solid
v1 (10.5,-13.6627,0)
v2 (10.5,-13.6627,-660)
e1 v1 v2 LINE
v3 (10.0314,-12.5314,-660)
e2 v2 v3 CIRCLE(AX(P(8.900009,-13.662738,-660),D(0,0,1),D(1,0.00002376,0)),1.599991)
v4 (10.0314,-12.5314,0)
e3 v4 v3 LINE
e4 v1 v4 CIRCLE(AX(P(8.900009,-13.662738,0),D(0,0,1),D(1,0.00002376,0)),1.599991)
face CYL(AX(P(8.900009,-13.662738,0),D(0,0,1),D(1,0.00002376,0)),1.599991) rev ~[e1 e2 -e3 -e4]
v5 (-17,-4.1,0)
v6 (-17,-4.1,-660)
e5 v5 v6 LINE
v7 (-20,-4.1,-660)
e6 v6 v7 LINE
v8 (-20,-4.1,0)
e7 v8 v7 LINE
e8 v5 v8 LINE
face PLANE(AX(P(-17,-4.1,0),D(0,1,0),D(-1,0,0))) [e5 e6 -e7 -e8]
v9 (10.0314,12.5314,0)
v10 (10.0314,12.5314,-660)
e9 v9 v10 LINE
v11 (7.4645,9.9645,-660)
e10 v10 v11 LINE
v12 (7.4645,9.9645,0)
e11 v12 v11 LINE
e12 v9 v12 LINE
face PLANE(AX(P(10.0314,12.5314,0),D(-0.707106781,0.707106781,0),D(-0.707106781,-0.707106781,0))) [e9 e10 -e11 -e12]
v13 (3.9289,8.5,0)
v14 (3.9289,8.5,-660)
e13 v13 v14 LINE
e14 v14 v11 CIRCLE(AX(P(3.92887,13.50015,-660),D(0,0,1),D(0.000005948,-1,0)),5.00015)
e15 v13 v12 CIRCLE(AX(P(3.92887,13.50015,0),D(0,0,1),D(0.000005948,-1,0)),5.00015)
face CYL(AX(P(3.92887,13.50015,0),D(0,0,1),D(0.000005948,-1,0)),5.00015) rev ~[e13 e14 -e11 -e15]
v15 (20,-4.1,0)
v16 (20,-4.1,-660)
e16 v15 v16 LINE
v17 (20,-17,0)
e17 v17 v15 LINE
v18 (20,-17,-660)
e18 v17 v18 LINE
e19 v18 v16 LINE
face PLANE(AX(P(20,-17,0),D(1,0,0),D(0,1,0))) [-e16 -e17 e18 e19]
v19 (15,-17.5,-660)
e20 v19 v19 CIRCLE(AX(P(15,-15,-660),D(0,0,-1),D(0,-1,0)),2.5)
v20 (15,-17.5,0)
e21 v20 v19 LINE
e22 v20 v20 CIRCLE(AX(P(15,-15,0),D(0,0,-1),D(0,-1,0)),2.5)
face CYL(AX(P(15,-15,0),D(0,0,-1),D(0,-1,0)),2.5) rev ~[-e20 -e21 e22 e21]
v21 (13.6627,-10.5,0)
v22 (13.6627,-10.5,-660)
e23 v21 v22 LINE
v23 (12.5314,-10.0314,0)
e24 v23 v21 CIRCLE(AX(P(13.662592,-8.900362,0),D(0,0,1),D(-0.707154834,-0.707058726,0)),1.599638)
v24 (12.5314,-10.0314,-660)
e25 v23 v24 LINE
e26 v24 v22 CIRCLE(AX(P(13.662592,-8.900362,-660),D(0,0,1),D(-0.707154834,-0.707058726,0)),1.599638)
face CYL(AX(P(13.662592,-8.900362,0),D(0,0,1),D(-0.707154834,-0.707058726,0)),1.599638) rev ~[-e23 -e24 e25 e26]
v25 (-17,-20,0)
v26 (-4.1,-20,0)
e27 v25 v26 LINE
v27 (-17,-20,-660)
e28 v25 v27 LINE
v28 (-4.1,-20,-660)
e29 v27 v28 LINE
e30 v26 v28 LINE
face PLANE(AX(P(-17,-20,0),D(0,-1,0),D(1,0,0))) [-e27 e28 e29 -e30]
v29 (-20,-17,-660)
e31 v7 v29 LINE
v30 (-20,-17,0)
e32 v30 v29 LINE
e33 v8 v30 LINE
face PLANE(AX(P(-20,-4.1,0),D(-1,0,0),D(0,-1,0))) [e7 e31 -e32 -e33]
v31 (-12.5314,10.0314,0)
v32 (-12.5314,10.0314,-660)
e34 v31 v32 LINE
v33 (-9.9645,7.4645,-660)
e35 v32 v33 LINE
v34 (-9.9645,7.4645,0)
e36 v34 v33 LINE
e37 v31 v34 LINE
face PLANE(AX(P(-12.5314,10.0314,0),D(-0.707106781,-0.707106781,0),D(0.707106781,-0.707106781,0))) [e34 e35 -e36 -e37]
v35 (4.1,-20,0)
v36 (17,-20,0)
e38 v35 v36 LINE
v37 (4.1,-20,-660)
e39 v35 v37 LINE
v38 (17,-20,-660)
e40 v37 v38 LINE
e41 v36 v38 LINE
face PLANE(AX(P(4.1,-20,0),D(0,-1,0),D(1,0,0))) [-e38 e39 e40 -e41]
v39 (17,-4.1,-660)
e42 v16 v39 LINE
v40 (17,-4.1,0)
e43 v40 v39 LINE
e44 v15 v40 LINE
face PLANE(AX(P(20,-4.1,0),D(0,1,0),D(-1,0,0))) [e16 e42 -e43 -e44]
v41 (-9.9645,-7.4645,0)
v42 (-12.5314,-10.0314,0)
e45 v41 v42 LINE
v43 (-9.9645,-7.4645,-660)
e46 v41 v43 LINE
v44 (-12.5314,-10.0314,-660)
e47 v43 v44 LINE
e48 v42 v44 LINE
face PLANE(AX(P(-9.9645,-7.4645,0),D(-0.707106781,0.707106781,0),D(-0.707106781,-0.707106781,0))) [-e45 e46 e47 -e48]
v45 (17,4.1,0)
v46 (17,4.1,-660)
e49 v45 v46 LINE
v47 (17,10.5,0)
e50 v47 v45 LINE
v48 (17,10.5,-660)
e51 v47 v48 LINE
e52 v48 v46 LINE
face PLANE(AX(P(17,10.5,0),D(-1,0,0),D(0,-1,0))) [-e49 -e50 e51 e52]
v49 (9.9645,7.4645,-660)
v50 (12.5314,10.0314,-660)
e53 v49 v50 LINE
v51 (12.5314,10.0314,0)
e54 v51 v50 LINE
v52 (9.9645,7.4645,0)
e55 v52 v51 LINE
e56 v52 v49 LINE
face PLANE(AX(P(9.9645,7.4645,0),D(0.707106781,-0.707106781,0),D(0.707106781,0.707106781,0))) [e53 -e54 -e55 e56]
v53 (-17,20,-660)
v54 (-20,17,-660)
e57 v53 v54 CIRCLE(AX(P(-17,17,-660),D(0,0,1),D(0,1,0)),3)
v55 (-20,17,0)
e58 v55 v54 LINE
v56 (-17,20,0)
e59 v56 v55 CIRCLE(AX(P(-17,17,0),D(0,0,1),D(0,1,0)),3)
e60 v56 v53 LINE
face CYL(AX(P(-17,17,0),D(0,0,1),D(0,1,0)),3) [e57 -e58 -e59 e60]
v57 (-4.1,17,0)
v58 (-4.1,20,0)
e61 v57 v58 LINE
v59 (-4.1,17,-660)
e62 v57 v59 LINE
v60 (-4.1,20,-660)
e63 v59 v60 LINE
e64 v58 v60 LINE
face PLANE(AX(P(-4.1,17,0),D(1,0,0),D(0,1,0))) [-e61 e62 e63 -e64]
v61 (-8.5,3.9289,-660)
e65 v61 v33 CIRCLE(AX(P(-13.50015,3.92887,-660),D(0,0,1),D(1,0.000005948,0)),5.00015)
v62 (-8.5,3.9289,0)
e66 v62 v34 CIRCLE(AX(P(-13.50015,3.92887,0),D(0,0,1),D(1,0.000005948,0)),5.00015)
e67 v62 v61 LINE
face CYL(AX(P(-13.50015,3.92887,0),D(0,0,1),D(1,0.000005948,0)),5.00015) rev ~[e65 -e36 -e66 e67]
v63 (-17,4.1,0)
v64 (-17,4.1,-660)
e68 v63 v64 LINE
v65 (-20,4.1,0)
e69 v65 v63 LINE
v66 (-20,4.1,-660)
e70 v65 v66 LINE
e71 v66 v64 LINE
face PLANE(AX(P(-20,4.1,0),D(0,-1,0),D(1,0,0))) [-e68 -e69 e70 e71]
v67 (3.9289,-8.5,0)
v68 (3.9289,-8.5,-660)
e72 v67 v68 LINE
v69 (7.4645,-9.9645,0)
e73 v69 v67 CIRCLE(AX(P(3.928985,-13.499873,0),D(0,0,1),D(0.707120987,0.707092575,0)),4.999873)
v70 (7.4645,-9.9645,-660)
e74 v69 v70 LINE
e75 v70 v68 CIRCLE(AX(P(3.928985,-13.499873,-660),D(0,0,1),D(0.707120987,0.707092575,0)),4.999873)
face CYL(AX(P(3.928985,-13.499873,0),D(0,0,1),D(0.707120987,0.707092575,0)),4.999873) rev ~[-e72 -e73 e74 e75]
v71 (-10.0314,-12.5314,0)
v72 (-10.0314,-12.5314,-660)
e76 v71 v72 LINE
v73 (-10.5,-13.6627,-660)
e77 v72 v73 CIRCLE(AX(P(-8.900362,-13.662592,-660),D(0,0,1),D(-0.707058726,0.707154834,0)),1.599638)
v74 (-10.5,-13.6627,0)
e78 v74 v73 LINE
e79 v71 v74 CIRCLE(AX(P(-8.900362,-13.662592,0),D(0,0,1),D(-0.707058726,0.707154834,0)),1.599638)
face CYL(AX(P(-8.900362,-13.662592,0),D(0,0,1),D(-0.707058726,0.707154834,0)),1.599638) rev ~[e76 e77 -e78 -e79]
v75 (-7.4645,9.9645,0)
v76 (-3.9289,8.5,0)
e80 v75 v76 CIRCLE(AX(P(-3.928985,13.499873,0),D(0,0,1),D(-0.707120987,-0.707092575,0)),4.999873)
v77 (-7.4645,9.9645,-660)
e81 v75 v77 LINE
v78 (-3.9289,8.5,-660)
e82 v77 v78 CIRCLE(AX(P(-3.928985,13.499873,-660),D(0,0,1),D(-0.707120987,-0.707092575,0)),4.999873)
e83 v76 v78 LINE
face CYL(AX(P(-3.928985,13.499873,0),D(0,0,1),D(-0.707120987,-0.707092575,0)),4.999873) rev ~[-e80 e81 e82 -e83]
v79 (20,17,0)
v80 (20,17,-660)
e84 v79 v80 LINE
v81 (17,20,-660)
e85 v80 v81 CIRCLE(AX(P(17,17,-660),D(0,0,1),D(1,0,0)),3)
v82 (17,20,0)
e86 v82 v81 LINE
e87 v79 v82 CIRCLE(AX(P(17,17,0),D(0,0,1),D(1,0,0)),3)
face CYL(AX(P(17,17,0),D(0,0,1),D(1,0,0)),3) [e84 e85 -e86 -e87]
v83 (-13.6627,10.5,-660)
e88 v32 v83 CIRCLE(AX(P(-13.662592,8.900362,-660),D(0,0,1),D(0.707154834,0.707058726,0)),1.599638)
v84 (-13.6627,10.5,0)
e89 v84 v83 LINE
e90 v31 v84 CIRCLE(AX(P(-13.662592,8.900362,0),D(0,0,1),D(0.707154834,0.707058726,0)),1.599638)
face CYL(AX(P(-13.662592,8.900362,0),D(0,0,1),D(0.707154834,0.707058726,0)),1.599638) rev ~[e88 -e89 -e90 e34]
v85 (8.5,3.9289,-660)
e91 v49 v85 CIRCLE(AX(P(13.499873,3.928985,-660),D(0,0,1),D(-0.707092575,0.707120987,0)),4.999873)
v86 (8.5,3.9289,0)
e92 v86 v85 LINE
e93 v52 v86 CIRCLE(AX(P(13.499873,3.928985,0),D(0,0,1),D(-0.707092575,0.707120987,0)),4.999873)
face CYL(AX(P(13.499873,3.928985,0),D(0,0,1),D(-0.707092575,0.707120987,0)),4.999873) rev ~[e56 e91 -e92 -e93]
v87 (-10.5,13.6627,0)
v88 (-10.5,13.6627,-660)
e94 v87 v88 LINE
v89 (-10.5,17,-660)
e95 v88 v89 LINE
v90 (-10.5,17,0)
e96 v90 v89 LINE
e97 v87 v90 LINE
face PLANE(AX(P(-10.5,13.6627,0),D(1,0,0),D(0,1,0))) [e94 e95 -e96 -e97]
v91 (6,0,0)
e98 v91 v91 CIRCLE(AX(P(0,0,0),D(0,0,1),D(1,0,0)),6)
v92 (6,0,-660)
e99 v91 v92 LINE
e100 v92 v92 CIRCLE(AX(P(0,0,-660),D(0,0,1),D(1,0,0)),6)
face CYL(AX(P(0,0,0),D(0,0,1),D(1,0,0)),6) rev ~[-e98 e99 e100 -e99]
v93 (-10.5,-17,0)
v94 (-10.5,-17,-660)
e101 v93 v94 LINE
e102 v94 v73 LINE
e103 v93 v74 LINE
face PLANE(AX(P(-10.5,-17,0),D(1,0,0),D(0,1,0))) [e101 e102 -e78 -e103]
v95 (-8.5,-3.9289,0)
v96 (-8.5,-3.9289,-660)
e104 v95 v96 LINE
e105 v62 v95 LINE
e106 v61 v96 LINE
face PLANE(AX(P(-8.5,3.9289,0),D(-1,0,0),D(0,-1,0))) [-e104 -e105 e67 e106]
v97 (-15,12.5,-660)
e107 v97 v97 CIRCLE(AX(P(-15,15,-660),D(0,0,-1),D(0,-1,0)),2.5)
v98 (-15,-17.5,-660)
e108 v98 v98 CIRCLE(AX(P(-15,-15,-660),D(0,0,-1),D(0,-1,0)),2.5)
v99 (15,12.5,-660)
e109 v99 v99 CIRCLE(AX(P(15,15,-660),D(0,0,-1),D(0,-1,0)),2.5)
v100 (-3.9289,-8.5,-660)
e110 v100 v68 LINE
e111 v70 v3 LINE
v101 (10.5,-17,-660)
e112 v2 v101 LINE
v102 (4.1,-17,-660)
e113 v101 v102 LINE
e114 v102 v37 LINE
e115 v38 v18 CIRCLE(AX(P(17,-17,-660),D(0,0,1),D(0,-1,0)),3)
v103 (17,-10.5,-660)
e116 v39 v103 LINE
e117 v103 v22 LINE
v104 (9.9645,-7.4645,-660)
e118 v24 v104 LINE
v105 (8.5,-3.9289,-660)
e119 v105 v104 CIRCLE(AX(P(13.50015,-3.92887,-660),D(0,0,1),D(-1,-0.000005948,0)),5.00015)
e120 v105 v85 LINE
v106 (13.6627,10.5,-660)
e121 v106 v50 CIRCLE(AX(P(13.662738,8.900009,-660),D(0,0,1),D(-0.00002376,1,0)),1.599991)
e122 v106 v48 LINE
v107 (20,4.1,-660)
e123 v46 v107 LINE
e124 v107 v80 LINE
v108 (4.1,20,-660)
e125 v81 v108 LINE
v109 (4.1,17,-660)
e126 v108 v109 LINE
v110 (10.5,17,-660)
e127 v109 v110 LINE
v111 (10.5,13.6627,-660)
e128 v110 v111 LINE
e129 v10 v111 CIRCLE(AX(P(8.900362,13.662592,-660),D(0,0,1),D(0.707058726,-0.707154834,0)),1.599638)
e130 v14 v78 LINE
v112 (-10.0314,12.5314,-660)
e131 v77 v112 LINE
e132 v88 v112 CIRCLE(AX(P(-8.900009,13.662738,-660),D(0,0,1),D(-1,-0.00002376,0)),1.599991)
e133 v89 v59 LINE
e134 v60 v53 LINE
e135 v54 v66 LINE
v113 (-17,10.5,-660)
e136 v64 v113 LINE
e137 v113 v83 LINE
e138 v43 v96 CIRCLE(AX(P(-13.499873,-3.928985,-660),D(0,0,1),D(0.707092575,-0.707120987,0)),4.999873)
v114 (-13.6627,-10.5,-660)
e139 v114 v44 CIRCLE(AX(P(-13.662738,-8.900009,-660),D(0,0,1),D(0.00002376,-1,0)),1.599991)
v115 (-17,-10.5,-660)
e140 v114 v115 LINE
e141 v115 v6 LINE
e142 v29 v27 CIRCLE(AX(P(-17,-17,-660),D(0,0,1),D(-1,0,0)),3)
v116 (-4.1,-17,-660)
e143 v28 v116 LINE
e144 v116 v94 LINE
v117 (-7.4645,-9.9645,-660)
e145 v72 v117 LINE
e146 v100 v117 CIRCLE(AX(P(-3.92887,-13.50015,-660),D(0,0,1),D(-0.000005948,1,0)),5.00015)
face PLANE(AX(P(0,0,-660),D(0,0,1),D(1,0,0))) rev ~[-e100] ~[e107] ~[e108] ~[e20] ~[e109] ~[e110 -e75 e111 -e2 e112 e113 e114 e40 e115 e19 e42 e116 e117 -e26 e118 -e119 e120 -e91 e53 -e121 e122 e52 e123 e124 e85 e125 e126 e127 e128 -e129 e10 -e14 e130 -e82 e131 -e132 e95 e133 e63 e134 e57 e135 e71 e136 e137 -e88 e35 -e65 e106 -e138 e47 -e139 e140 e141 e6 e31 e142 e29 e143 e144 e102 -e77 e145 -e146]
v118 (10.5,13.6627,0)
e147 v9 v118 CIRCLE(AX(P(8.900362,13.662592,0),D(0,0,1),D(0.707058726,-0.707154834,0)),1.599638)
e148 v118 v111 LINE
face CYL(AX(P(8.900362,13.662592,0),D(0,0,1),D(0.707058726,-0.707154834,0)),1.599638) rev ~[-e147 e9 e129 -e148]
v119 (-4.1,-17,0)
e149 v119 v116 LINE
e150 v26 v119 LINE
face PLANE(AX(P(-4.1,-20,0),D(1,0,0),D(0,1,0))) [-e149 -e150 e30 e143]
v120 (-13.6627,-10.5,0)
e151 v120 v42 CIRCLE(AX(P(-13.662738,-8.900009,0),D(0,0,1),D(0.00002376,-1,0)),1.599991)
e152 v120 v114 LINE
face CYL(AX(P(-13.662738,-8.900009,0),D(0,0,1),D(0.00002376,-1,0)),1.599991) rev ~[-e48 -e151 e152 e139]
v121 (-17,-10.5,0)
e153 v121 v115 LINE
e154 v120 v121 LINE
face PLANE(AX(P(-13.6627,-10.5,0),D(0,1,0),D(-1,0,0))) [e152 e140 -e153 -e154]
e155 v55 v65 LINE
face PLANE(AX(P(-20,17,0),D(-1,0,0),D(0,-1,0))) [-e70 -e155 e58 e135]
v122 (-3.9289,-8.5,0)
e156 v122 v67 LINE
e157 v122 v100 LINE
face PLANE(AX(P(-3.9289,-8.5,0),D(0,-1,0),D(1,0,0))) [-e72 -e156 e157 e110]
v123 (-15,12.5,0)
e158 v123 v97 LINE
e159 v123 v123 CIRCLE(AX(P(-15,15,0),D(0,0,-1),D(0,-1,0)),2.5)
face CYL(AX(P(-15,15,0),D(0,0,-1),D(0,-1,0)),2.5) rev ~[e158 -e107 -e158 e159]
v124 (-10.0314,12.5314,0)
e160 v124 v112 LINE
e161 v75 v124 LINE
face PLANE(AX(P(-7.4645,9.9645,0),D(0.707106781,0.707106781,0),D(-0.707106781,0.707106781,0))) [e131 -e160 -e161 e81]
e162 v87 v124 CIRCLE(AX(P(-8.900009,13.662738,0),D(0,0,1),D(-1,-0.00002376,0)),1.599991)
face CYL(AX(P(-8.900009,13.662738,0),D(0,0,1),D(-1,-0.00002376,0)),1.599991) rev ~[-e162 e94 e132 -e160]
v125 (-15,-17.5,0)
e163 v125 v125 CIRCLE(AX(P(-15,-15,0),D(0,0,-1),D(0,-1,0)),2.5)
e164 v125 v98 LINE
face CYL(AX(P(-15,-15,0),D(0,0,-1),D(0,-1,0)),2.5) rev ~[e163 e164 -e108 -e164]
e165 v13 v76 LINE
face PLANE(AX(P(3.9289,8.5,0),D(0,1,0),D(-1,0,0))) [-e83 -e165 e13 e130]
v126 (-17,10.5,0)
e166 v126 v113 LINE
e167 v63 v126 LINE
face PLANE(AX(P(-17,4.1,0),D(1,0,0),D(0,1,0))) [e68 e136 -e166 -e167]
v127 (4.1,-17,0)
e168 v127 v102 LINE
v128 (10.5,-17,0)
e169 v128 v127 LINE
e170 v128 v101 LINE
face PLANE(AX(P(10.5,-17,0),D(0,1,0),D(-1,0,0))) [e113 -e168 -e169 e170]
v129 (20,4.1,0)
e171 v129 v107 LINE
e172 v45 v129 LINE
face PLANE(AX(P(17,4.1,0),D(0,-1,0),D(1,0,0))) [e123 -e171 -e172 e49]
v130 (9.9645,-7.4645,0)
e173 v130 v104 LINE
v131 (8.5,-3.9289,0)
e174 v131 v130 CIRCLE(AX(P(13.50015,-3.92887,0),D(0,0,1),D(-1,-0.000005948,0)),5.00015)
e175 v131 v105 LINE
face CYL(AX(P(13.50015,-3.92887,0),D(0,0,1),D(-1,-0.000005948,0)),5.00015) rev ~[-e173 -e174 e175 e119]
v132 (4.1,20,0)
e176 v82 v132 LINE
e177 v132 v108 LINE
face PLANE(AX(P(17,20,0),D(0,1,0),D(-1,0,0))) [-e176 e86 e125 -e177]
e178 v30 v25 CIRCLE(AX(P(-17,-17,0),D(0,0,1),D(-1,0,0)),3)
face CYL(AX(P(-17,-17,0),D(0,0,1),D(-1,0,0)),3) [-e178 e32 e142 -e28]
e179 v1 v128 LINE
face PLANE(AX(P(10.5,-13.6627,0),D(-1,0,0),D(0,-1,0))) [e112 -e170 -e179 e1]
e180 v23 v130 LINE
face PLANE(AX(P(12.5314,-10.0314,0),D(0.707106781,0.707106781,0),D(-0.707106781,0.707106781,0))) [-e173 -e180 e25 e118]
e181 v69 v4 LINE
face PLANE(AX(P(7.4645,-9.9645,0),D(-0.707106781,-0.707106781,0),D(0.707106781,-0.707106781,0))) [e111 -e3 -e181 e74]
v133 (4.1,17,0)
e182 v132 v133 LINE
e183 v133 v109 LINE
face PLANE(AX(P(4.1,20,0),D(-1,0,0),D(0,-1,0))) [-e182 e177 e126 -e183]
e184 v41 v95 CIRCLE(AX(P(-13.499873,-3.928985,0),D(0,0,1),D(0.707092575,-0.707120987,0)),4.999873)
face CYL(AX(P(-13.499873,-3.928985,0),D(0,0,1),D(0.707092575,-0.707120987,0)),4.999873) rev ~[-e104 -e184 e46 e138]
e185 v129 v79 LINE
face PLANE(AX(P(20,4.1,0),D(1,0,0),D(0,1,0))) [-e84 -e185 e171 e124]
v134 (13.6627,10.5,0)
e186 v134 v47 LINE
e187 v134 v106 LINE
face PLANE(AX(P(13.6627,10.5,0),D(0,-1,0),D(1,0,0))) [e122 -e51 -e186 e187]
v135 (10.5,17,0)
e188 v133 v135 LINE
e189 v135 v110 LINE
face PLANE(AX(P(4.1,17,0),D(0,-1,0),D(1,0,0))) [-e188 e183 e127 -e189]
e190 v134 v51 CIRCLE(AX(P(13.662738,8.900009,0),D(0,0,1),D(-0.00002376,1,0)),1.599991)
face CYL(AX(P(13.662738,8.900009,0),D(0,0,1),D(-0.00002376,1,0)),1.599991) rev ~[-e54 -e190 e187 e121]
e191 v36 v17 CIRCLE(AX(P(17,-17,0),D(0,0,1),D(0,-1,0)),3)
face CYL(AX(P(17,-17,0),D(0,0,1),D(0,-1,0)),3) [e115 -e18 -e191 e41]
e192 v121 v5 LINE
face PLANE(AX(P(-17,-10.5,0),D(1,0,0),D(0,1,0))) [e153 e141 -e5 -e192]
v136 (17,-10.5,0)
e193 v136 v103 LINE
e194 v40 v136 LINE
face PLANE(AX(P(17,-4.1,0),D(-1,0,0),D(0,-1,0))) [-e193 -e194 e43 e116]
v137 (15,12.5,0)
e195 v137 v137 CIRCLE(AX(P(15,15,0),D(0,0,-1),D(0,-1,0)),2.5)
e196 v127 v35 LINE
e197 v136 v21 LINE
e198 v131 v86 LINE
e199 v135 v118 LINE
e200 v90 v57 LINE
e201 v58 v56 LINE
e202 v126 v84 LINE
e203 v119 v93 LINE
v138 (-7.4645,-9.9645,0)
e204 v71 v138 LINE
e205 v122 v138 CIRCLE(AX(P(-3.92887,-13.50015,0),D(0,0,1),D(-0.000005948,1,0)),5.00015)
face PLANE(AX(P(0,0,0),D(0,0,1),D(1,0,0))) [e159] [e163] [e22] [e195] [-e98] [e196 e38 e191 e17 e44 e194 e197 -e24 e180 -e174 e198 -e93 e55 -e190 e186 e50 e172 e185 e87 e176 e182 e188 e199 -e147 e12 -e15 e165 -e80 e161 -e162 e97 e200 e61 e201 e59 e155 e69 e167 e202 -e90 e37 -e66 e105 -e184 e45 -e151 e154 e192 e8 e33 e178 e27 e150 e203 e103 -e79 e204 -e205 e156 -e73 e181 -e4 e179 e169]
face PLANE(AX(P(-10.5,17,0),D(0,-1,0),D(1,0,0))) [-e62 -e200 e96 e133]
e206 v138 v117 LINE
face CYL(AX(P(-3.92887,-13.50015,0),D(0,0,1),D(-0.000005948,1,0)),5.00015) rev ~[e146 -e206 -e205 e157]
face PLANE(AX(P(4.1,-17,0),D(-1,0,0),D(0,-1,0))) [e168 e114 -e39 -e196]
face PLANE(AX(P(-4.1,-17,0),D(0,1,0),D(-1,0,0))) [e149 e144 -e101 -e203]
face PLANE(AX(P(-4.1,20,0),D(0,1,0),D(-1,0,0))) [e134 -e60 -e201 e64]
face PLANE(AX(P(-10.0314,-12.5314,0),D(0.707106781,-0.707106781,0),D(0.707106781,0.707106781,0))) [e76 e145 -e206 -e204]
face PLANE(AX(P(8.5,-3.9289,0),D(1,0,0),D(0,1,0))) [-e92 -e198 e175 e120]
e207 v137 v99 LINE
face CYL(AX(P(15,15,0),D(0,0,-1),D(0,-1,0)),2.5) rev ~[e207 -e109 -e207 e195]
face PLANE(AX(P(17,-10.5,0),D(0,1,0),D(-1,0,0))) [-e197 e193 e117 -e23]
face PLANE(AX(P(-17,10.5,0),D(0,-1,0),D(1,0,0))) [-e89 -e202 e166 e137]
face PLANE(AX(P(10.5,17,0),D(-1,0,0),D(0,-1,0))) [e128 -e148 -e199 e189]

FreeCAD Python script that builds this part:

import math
import FreeCAD as App
import Part
import Sketcher

doc = App.newDocument("Part")
body = doc.addObject("PartDesign::Body", "Body")

sketch1 = body.newObject("Sketcher::SketchObject", "Sketch")
sketch1.AttachmentSupport = (doc.getObject("XY_Plane"), [""])
sketch1.MapMode = "FlatFace"
sketch1.addGeometry(Part.LineSegment(App.Vector(-20, -4.1, 0), App.Vector(-20, -17, 0)), False)
sketch1.addGeometry(Part.ArcOfCircle(Part.Circle(App.Vector(-17, -17, 0), App.Vector(0, 0, 1), 3), math.radians(180), math.radians(270)), False)
sketch1.addGeometry(Part.LineSegment(App.Vector(-17, -20, 0), App.Vector(-4.1, -20, 0)), False)
sketch1.addGeometry(Part.LineSegment(App.Vector(-4.1, -20, 0), App.Vector(-4.1, -17, 0)), False)
sketch1.addGeometry(Part.LineSegment(App.Vector(-4.1, -17, 0), App.Vector(-10.5, -17, 0)), False)
sketch1.addGeometry(Part.LineSegment(App.Vector(-10.5, -17, 0), App.Vector(-10.5, -13.7, 0)), False)
sketch1.addGeometry(Part.ArcOfCircle(Part.Circle(App.Vector(-8.9, -13.7, 0), App.Vector(0, 0, 1), 1.6), math.radians(135), math.radians(180)), False)
sketch1.addGeometry(Part.LineSegment(App.Vector(-10, -12.5, 0), App.Vector(-7.5, -10, 0)), False)
sketch1.addGeometry(Part.ArcOfCircle(Part.Circle(App.Vector(-3.9, -13.5, 0), App.Vector(0, 0, 1), 5), math.radians(90), math.radians(135)), False)
sketch1.addGeometry(Part.LineSegment(App.Vector(-3.9, -8.5, 0), App.Vector(3.9, -8.5, 0)), False)
sketch1.addGeometry(Part.ArcOfCircle(Part.Circle(App.Vector(3.9, -13.5, 0), App.Vector(0, 0, 1), 5), math.radians(45), math.radians(90)), False)
sketch1.addGeometry(Part.LineSegment(App.Vector(7.5, -10, 0), App.Vector(10, -12.5, 0)), False)
sketch1.addGeometry(Part.ArcOfCircle(Part.Circle(App.Vector(8.9, -13.7, 0), App.Vector(0, 0, 1), 1.6), math.radians(0), math.radians(45)), False)
sketch1.addGeometry(Part.LineSegment(App.Vector(10.5, -13.7, 0), App.Vector(10.5, -17, 0)), False)
sketch1.addGeometry(Part.LineSegment(App.Vector(10.5, -17, 0), App.Vector(4.1, -17, 0)), False)
sketch1.addGeometry(Part.LineSegment(App.Vector(4.1, -17, 0), App.Vector(4.1, -20, 0)), False)
sketch1.addGeometry(Part.LineSegment(App.Vector(4.1, -20, 0), App.Vector(17, -20, 0)), False)
sketch1.addGeometry(Part.ArcOfCircle(Part.Circle(App.Vector(17, -17, 0), App.Vector(0, 0, 1), 3), math.radians(-90), math.radians(0)), False)
sketch1.addGeometry(Part.LineSegment(App.Vector(20, -17, 0), App.Vector(20, -4.1, 0)), False)
sketch1.addGeometry(Part.LineSegment(App.Vector(20, -4.1, 0), App.Vector(17, -4.1, 0)), False)
sketch1.addGeometry(Part.LineSegment(App.Vector(17, -4.1, 0), App.Vector(17, -10.5, 0)), False)
sketch1.addGeometry(Part.LineSegment(App.Vector(17, -10.5, 0), App.Vector(13.7, -10.5, 0)), False)
sketch1.addGeometry(Part.ArcOfCircle(Part.Circle(App.Vector(13.7, -8.9, 0), App.Vector(0, 0, 1), 1.6), math.radians(-135), math.radians(-90)), False)
sketch1.addGeometry(Part.LineSegment(App.Vector(12.5, -10, 0), App.Vector(10, -7.5, 0)), False)
sketch1.addGeometry(Part.ArcOfCircle(Part.Circle(App.Vector(13.5, -3.9, 0), App.Vector(0, 0, 1), 5), math.radians(180), math.radians(225)), False)
sketch1.addGeometry(Part.LineSegment(App.Vector(8.5, -3.9, 0), App.Vector(8.5, 3.9, 0)), False)
sketch1.addGeometry(Part.ArcOfCircle(Part.Circle(App.Vector(13.5, 3.9, 0), App.Vector(0, 0, 1), 5), math.radians(135), math.radians(180)), False)
sketch1.addGeometry(Part.LineSegment(App.Vector(10, 7.5, 0), App.Vector(12.5, 10, 0)), False)
sketch1.addGeometry(Part.ArcOfCircle(Part.Circle(App.Vector(13.7, 8.9, 0), App.Vector(0, 0, 1), 1.6), math.radians(90), math.radians(135)), False)
sketch1.addGeometry(Part.LineSegment(App.Vector(13.7, 10.5, 0), App.Vector(17, 10.5, 0)), False)
sketch1.addGeometry(Part.LineSegment(App.Vector(17, 10.5, 0), App.Vector(17, 4.1, 0)), False)
sketch1.addGeometry(Part.LineSegment(App.Vector(17, 4.1, 0), App.Vector(20, 4.1, 0)), False)
sketch1.addGeometry(Part.LineSegment(App.Vector(20, 4.1, 0), App.Vector(20, 17, 0)), False)
sketch1.addGeometry(Part.ArcOfCircle(Part.Circle(App.Vector(17, 17, 0), App.Vector(0, 0, 1), 3), math.radians(0), math.radians(90)), False)
sketch1.addGeometry(Part.LineSegment(App.Vector(17, 20, 0), App.Vector(4.1, 20, 0)), False)
sketch1.addGeometry(Part.LineSegment(App.Vector(4.1, 20, 0), App.Vector(4.1, 17, 0)), False)
sketch1.addGeometry(Part.LineSegment(App.Vector(4.1, 17, 0), App.Vector(10.5, 17, 0)), False)
sketch1.addGeometry(Part.LineSegment(App.Vector(10.5, 17, 0), App.Vector(10.5, 13.7, 0)), False)
sketch1.addGeometry(Part.ArcOfCircle(Part.Circle(App.Vector(8.9, 13.7, 0), App.Vector(0, 0, 1), 1.6), math.radians(-45), math.radians(0)), False)
sketch1.addGeometry(Part.LineSegment(App.Vector(10, 12.5, 0), App.Vector(7.5, 10, 0)), False)
sketch1.addGeometry(Part.ArcOfCircle(Part.Circle(App.Vector(3.9, 13.5, 0), App.Vector(0, 0, 1), 5), math.radians(-90), math.radians(-45)), False)
sketch1.addGeometry(Part.LineSegment(App.Vector(3.9, 8.5, 0), App.Vector(-3.9, 8.5, 0)), False)
sketch1.addGeometry(Part.ArcOfCircle(Part.Circle(App.Vector(-3.9, 13.5, 0), App.Vector(0, 0, 1), 5), math.radians(-135), math.radians(-90)), False)
sketch1.addGeometry(Part.LineSegment(App.Vector(-7.5, 10, 0), App.Vector(-10, 12.5, 0)), False)
sketch1.addGeometry(Part.ArcOfCircle(Part.Circle(App.Vector(-8.9, 13.7, 0), App.Vector(0, 0, 1), 1.6), math.radians(180), math.radians(225)), False)
sketch1.addGeometry(Part.LineSegment(App.Vector(-10.5, 13.7, 0), App.Vector(-10.5, 17, 0)), False)
sketch1.addGeometry(Part.LineSegment(App.Vector(-10.5, 17, 0), App.Vector(-4.1, 17, 0)), False)
sketch1.addGeometry(Part.LineSegment(App.Vector(-4.1, 17, 0), App.Vector(-4.1, 20, 0)), False)
sketch1.addGeometry(Part.LineSegment(App.Vector(-4.1, 20, 0), App.Vector(-17, 20, 0)), False)
sketch1.addGeometry(Part.ArcOfCircle(Part.Circle(App.Vector(-17, 17, 0), App.Vector(0, 0, 1), 3), math.radians(90), math.radians(180)), False)
sketch1.addGeometry(Part.LineSegment(App.Vector(-20, 17, 0), App.Vector(-20, 4.1, 0)), False)
sketch1.addGeometry(Part.LineSegment(App.Vector(-20, 4.1, 0), App.Vector(-17, 4.1, 0)), False)
sketch1.addGeometry(Part.LineSegment(App.Vector(-17, 4.1, 0), App.Vector(-17, 10.5, 0)), False)
sketch1.addGeometry(Part.LineSegment(App.Vector(-17, 10.5, 0), App.Vector(-13.7, 10.5, 0)), False)
sketch1.addGeometry(Part.ArcOfCircle(Part.Circle(App.Vector(-13.7, 8.9, 0), App.Vector(0, 0, 1), 1.6), math.radians(45), math.radians(90)), False)
sketch1.addGeometry(Part.LineSegment(App.Vector(-12.5, 10, 0), App.Vector(-10, 7.5, 0)), False)
sketch1.addGeometry(Part.ArcOfCircle(Part.Circle(App.Vector(-13.5, 3.9, 0), App.Vector(0, 0, 1), 5), math.radians(0), math.radians(45)), False)
sketch1.addGeometry(Part.LineSegment(App.Vector(-8.5, 3.9, 0), App.Vector(-8.5, -3.9, 0)), False)
sketch1.addGeometry(Part.ArcOfCircle(Part.Circle(App.Vector(-13.5, -3.9, 0), App.Vector(0, 0, 1), 5), math.radians(-45), math.radians(0)), False)
sketch1.addGeometry(Part.LineSegment(App.Vector(-10, -7.5, 0), App.Vector(-12.5, -10, 0)), False)
sketch1.addGeometry(Part.ArcOfCircle(Part.Circle(App.Vector(-13.7, -8.9, 0), App.Vector(0, 0, 1), 1.6), math.radians(-90), math.radians(-45)), False)
sketch1.addGeometry(Part.LineSegment(App.Vector(-13.7, -10.5, 0), App.Vector(-17, -10.5, 0)), False)
sketch1.addGeometry(Part.LineSegment(App.Vector(-17, -10.5, 0), App.Vector(-17, -4.1, 0)), False)
sketch1.addGeometry(Part.LineSegment(App.Vector(-17, -4.1, 0), App.Vector(-20, -4.1, 0)), False)
sketch1.addGeometry(Part.Circle(App.Vector(0, 0, 0), App.Vector(0, 0, 1), 6), False)
sketch1.addConstraint(Sketcher.Constraint("Tangent", 0, 2, 1, 1))
sketch1.addConstraint(Sketcher.Constraint("Tangent", 1, 2, 2, 1))
sketch1.addConstraint(Sketcher.Constraint("Coincident", 2, 2, 3, 1))
sketch1.addConstraint(Sketcher.Constraint("Coincident", 3, 2, 4, 1))
sketch1.addConstraint(Sketcher.Constraint("Coincident", 4, 2, 5, 1))
sketch1.addConstraint(Sketcher.Constraint("Tangent", 5, 2, 6, 2))
sketch1.addConstraint(Sketcher.Constraint("Tangent", 6, 1, 7, 1))
sketch1.addConstraint(Sketcher.Constraint("Tangent", 7, 2, 8, 2))
sketch1.addConstraint(Sketcher.Constraint("Tangent", 8, 1, 9, 1))
sketch1.addConstraint(Sketcher.Constraint("Tangent", 9, 2, 10, 2))
sketch1.addConstraint(Sketcher.Constraint("Tangent", 10, 1, 11, 1))
sketch1.addConstraint(Sketcher.Constraint("Tangent", 11, 2, 12, 2))
sketch1.addConstraint(Sketcher.Constraint("Tangent", 12, 1, 13, 1))
sketch1.addConstraint(Sketcher.Constraint("Coincident", 13, 2, 14, 1))
sketch1.addConstraint(Sketcher.Constraint("Coincident", 14, 2, 15, 1))
sketch1.addConstraint(Sketcher.Constraint("Coincident", 15, 2, 16, 1))
sketch1.addConstraint(Sketcher.Constraint("Tangent", 16, 2, 17, 1))
sketch1.addConstraint(Sketcher.Constraint("Tangent", 17, 2, 18, 1))
sketch1.addConstraint(Sketcher.Constraint("Coincident", 18, 2, 19, 1))
sketch1.addConstraint(Sketcher.Constraint("Coincident", 19, 2, 20, 1))
sketch1.addConstraint(Sketcher.Constraint("Coincident", 20, 2, 21, 1))
sketch1.addConstraint(Sketcher.Constraint("Tangent", 21, 2, 22, 2))
sketch1.addConstraint(Sketcher.Constraint("Tangent", 22, 1, 23, 1))
sketch1.addConstraint(Sketcher.Constraint("Tangent", 23, 2, 24, 2))
sketch1.addConstraint(Sketcher.Constraint("Tangent", 24, 1, 25, 1))
sketch1.addConstraint(Sketcher.Constraint("Tangent", 25, 2, 26, 2))
sketch1.addConstraint(Sketcher.Constraint("Tangent", 26, 1, 27, 1))
sketch1.addConstraint(Sketcher.Constraint("Tangent", 27, 2, 28, 2))
sketch1.addConstraint(Sketcher.Constraint("Tangent", 28, 1, 29, 1))
sketch1.addConstraint(Sketcher.Constraint("Coincident", 29, 2, 30, 1))
sketch1.addConstraint(Sketcher.Constraint("Coincident", 30, 2, 31, 1))
sketch1.addConstraint(Sketcher.Constraint("Coincident", 31, 2, 32, 1))
sketch1.addConstraint(Sketcher.Constraint("Tangent", 32, 2, 33, 1))
sketch1.addConstraint(Sketcher.Constraint("Tangent", 33, 2, 34, 1))
sketch1.addConstraint(Sketcher.Constraint("Coincident", 34, 2, 35, 1))
sketch1.addConstraint(Sketcher.Constraint("Coincident", 35, 2, 36, 1))
sketch1.addConstraint(Sketcher.Constraint("Coincident", 36, 2, 37, 1))
sketch1.addConstraint(Sketcher.Constraint("Tangent", 37, 2, 38, 2))
sketch1.addConstraint(Sketcher.Constraint("Tangent", 38, 1, 39, 1))
sketch1.addConstraint(Sketcher.Constraint("Tangent", 39, 2, 40, 2))
sketch1.addConstraint(Sketcher.Constraint("Tangent", 40, 1, 41, 1))
sketch1.addConstraint(Sketcher.Constraint("Tangent", 41, 2, 42, 2))
sketch1.addConstraint(Sketcher.Constraint("Tangent", 42, 1, 43, 1))
sketch1.addConstraint(Sketcher.Constraint("Tangent", 43, 2, 44, 2))
sketch1.addConstraint(Sketcher.Constraint("Tangent", 44, 1, 45, 1))
sketch1.addConstraint(Sketcher.Constraint("Coincident", 45, 2, 46, 1))
sketch1.addConstraint(Sketcher.Constraint("Coincident", 46, 2, 47, 1))
sketch1.addConstraint(Sketcher.Constraint("Coincident", 47, 2, 48, 1))
sketch1.addConstraint(Sketcher.Constraint("Tangent", 48, 2, 49, 1))
sketch1.addConstraint(Sketcher.Constraint("Tangent", 49, 2, 50, 1))
sketch1.addConstraint(Sketcher.Constraint("Coincident", 50, 2, 51, 1))
sketch1.addConstraint(Sketcher.Constraint("Coincident", 51, 2, 52, 1))
sketch1.addConstraint(Sketcher.Constraint("Coincident", 52, 2, 53, 1))
sketch1.addConstraint(Sketcher.Constraint("Tangent", 53, 2, 54, 2))
sketch1.addConstraint(Sketcher.Constraint("Tangent", 54, 1, 55, 1))
sketch1.addConstraint(Sketcher.Constraint("Tangent", 55, 2, 56, 2))
sketch1.addConstraint(Sketcher.Constraint("Tangent", 56, 1, 57, 1))
sketch1.addConstraint(Sketcher.Constraint("Tangent", 57, 2, 58, 2))
sketch1.addConstraint(Sketcher.Constraint("Tangent", 58, 1, 59, 1))
sketch1.addConstraint(Sketcher.Constraint("Tangent", 59, 2, 60, 2))
sketch1.addConstraint(Sketcher.Constraint("Tangent", 60, 1, 61, 1))
sketch1.addConstraint(Sketcher.Constraint("Coincident", 61, 2, 62, 1))
sketch1.addConstraint(Sketcher.Constraint("Coincident", 62, 2, 63, 1))
sketch1.addConstraint(Sketcher.Constraint("Coincident", 63, 2, 0, 1))
sketch1.addConstraint(Sketcher.Constraint("Vertical", 0))
sketch1.addConstraint(Sketcher.Constraint("Horizontal", 2))
sketch1.addConstraint(Sketcher.Constraint("Vertical", 3))
sketch1.addConstraint(Sketcher.Constraint("Horizontal", 4))
sketch1.addConstraint(Sketcher.Constraint("Vertical", 5))
sketch1.addConstraint(Sketcher.Constraint("Horizontal", 9))
sketch1.addConstraint(Sketcher.Constraint("Vertical", 13))
sketch1.addConstraint(Sketcher.Constraint("Horizontal", 14))
sketch1.addConstraint(Sketcher.Constraint("Vertical", 15))
sketch1.addConstraint(Sketcher.Constraint("Horizontal", 16))
sketch1.addConstraint(Sketcher.Constraint("Vertical", 18))
sketch1.addConstraint(Sketcher.Constraint("Horizontal", 19))
sketch1.addConstraint(Sketcher.Constraint("Vertical", 20))
sketch1.addConstraint(Sketcher.Constraint("Horizontal", 21))
sketch1.addConstraint(Sketcher.Constraint("Vertical", 25))
sketch1.addConstraint(Sketcher.Constraint("Horizontal", 29))
sketch1.addConstraint(Sketcher.Constraint("Vertical", 30))
sketch1.addConstraint(Sketcher.Constraint("Horizontal", 31))
sketch1.addConstraint(Sketcher.Constraint("Vertical", 32))
sketch1.addConstraint(Sketcher.Constraint("Horizontal", 34))
sketch1.addConstraint(Sketcher.Constraint("Vertical", 35))
sketch1.addConstraint(Sketcher.Constraint("Horizontal", 36))
sketch1.addConstraint(Sketcher.Constraint("Vertical", 37))
sketch1.addConstraint(Sketcher.Constraint("Horizontal", 41))
sketch1.addConstraint(Sketcher.Constraint("Vertical", 45))
sketch1.addConstraint(Sketcher.Constraint("Horizontal", 46))
sketch1.addConstraint(Sketcher.Constraint("Vertical", 47))
sketch1.addConstraint(Sketcher.Constraint("Horizontal", 48))
sketch1.addConstraint(Sketcher.Constraint("Vertical", 50))
sketch1.addConstraint(Sketcher.Constraint("Horizontal", 51))
sketch1.addConstraint(Sketcher.Constraint("Vertical", 52))
sketch1.addConstraint(Sketcher.Constraint("Horizontal", 53))
sketch1.addConstraint(Sketcher.Constraint("Vertical", 57))
sketch1.addConstraint(Sketcher.Constraint("Horizontal", 61))
sketch1.addConstraint(Sketcher.Constraint("Vertical", 62))
sketch1.addConstraint(Sketcher.Constraint("Horizontal", 63))
sketch1.addConstraint(Sketcher.Constraint("Coincident", 64, 3, -1, 1))
sketch1.addConstraint(Sketcher.Constraint("Equal", 8, 10))
sketch1.addConstraint(Sketcher.Constraint("Equal", 6, 12))
sketch1.addConstraint(Sketcher.Constraint("Equal", 1, 17))
sketch1.addConstraint(Sketcher.Constraint("Equal", 12, 22))
sketch1.addConstraint(Sketcher.Constraint("Equal", 10, 24))
sketch1.addConstraint(Sketcher.Constraint("Equal", 24, 26))
sketch1.addConstraint(Sketcher.Constraint("Equal", 22, 28))
sketch1.addConstraint(Sketcher.Constraint("Equal", 17, 33))
sketch1.addConstraint(Sketcher.Constraint("Equal", 28, 38))
sketch1.addConstraint(Sketcher.Constraint("Equal", 26, 40))
sketch1.addConstraint(Sketcher.Constraint("Equal", 40, 42))
sketch1.addConstraint(Sketcher.Constraint("Equal", 38, 44))
sketch1.addConstraint(Sketcher.Constraint("Equal", 33, 49))
sketch1.addConstraint(Sketcher.Constraint("Equal", 44, 54))
sketch1.addConstraint(Sketcher.Constraint("Equal", 42, 56))
sketch1.addConstraint(Sketcher.Constraint("Equal", 56, 58))
sketch1.addConstraint(Sketcher.Constraint("Equal", 54, 60))
sketch1.addConstraint(Sketcher.Constraint("Symmetric", 1, 3, 33, 3, -1, 1))
sketch1.addConstraint(Sketcher.Constraint("Symmetric", 6, 3, 38, 3, -1, 1))
sketch1.addConstraint(Sketcher.Constraint("Symmetric", 8, 3, 40, 3, -1, 1))
sketch1.addConstraint(Sketcher.Constraint("Symmetric", 12, 3, 44, 3, -1, 1))
sketch1.addConstraint(Sketcher.Constraint("Symmetric", 17, 3, 49, 3, -1, 1))
sketch1.addConstraint(Sketcher.Constraint("Symmetric", 22, 3, 54, 3, -1, 1))
sketch1.addConstraint(Sketcher.Constraint("Symmetric", 24, 3, 56, 3, -1, 1))
sketch1.addConstraint(Sketcher.Constraint("Symmetric", 28, 3, 60, 3, -1, 1))
sketch1.addConstraint(Sketcher.Constraint("Symmetric", 3, 2, 35, 2, -1, 1))
sketch1.addConstraint(Sketcher.Constraint("Symmetric", 14, 2, 46, 2, -1, 1))
sketch1.addConstraint(Sketcher.Constraint("Symmetric", 19, 2, 51, 2, -1, 1))
sketch1.addConstraint(Sketcher.Constraint("Symmetric", 30, 2, 62, 2, -1, 1))
sketch1.addConstraint(Sketcher.Constraint("Symmetric", 6, 3, 12, 3, -2))
sketch1.addConstraint(Sketcher.Constraint("Symmetric", 1, 3, 17, 3, -2))
sketch1.addConstraint(Sketcher.Constraint("Symmetric", 28, 3, 54, 3, -2))
sketch1.addConstraint(Sketcher.Constraint("Symmetric", 3, 2, 14, 2, -2))
sketch1.addConstraint(Sketcher.Constraint("Symmetric", 30, 2, 51, 2, -2))
sketch1.addConstraint(Sketcher.Constraint("Perpendicular", 7, 11))
sketch1.addConstraint(Sketcher.Constraint("Parallel", 11, 23))
sketch1.addConstraint(Sketcher.Constraint("Perpendicular", 23, 27))
sketch1.addConstraint(Sketcher.Constraint("Perpendicular", 39, 43))
sketch1.addConstraint(Sketcher.Constraint("Perpendicular", 55, 59))
sketch1.addConstraint(Sketcher.Constraint("Horizontal", 26, 3, 56, 3))
sketch1.addConstraint(Sketcher.Constraint("Horizontal", 0, 2, 3, 2))
sketch1.addConstraint(Sketcher.Constraint("Vertical", 16, 2, 19, 2))
sketch1.addConstraint(Sketcher.Constraint("Equal", 48, 0))
sketch1.addConstraint(Sketcher.Constraint("Equal", 61, 5))
sketch1.addConstraint(Sketcher.Constraint("Equal", 46, 20))
sketch1.addConstraint(Sketcher.Constraint("Equal", 41, 25))
sketch1.addConstraint(Sketcher.Constraint("Equal", 11, 23))
sketch1.addConstraint(Sketcher.Constraint("Diameter", 64, 12.0))
sketch1.addConstraint(Sketcher.Constraint("Radius", 1, 3.0))
sketch1.addConstraint(Sketcher.Constraint("Radius", 8, 5.0))
sketch1.addConstraint(Sketcher.Constraint("DistanceX", 2, 1, 2, 2, 12.9))
sketch1.addConstraint(Sketcher.Constraint("DistanceX", 4, 2, 4, 1, 6.4))
sketch1.addConstraint(Sketcher.Constraint("DistanceX", 1, 3, -1, 1, 17.0))
sketch1.addConstraint(Sketcher.Constraint("DistanceY", 8, 3, -1, 1, 13.5))
sketch1.addConstraint(Sketcher.Constraint("Radius", 6, 1.5998))
sketch1.addConstraint(Sketcher.Constraint("DistanceX", 9, 1, 9, 2, 7.8578))
pad1 = body.newObject("PartDesign::Pad", "Pad")
pad1.Profile = sketch1
pad1.Length = 660
pad1.Reversed = True

sketch2 = body.newObject("Sketcher::SketchObject", "Sketch001")
sketch2.AttachmentSupport = (doc.getObject("XY_Plane"), [""])
sketch2.MapMode = "FlatFace"
sketch2.addGeometry(Part.Circle(App.Vector(-15, -15, 0), App.Vector(0, 0, 1), 2.5), False)
sketch2.addConstraint(Sketcher.Constraint("Diameter", 0, 5.0))
sketch2.addConstraint(Sketcher.Constraint("DistanceX", 0, 3, -1, 1, 15.0))
sketch2.addConstraint(Sketcher.Constraint("DistanceY", 0, 3, -1, 1, 15.0))
doc.recompute()
hole = body.newObject("PartDesign::Hole", "Hole")
hole.Profile = sketch2
hole.ThreadType = "None"
hole.Diameter = 5
hole.DepthType = "Dimension"
hole.Depth = 6000
hole.DrillPoint = "Flat"

sketch3 = body.newObject("Sketcher::SketchObject", "Sketch002")
sketch3.AttachmentSupport = (doc.getObject("XY_Plane"), [""])
sketch3.MapMode = "FlatFace"
sketch3.addGeometry(Part.Circle(App.Vector(15, -15, 0), App.Vector(0, 0, 1), 2.5), False)
sketch3.addConstraint(Sketcher.Constraint("Diameter", 0, 5.0))
sketch3.addConstraint(Sketcher.Constraint("DistanceX", -1, 1, 0, 3, 15.0))
sketch3.addConstraint(Sketcher.Constraint("DistanceY", 0, 3, -1, 1, 15.0))
doc.recompute()
hole2 = body.newObject("PartDesign::Hole", "Hole001")
hole2.Profile = sketch3
hole2.ThreadType = "None"
hole2.Diameter = 5
hole2.DepthType = "Dimension"
hole2.Depth = 6000
hole2.DrillPoint = "Flat"

sketch4 = body.newObject("Sketcher::SketchObject", "Sketch003")
sketch4.AttachmentSupport = (doc.getObject("XY_Plane"), [""])
sketch4.MapMode = "FlatFace"
sketch4.addGeometry(Part.Circle(App.Vector(15, 15, 0), App.Vector(0, 0, 1), 2.5), False)
sketch4.addConstraint(Sketcher.Constraint("Diameter", 0, 5.0))
sketch4.addConstraint(Sketcher.Constraint("DistanceX", -1, 1, 0, 3, 15.0))
sketch4.addConstraint(Sketcher.Constraint("DistanceY", -1, 1, 0, 3, 15.0))
doc.recompute()
hole3 = body.newObject("PartDesign::Hole", "Hole002")
hole3.Profile = sketch4
hole3.ThreadType = "None"
hole3.Diameter = 5
hole3.DepthType = "Dimension"
hole3.Depth = 6000
hole3.DrillPoint = "Flat"

sketch5 = body.newObject("Sketcher::SketchObject", "Sketch004")
sketch5.AttachmentSupport = (doc.getObject("XY_Plane"), [""])
sketch5.MapMode = "FlatFace"
sketch5.addGeometry(Part.Circle(App.Vector(-15, 15, 0), App.Vector(0, 0, 1), 2.5), False)
sketch5.addConstraint(Sketcher.Constraint("Diameter", 0, 5.0))
sketch5.addConstraint(Sketcher.Constraint("DistanceX", 0, 3, -1, 1, 15.0))
sketch5.addConstraint(Sketcher.Constraint("DistanceY", -1, 1, 0, 3, 15.0))
doc.recompute()
hole4 = body.newObject("PartDesign::Hole", "Hole003")
hole4.Profile = sketch5
hole4.ThreadType = "None"
hole4.Diameter = 5
hole4.DepthType = "Dimension"
hole4.Depth = 6000
hole4.DrillPoint = "Flat"

doc.recompute()
